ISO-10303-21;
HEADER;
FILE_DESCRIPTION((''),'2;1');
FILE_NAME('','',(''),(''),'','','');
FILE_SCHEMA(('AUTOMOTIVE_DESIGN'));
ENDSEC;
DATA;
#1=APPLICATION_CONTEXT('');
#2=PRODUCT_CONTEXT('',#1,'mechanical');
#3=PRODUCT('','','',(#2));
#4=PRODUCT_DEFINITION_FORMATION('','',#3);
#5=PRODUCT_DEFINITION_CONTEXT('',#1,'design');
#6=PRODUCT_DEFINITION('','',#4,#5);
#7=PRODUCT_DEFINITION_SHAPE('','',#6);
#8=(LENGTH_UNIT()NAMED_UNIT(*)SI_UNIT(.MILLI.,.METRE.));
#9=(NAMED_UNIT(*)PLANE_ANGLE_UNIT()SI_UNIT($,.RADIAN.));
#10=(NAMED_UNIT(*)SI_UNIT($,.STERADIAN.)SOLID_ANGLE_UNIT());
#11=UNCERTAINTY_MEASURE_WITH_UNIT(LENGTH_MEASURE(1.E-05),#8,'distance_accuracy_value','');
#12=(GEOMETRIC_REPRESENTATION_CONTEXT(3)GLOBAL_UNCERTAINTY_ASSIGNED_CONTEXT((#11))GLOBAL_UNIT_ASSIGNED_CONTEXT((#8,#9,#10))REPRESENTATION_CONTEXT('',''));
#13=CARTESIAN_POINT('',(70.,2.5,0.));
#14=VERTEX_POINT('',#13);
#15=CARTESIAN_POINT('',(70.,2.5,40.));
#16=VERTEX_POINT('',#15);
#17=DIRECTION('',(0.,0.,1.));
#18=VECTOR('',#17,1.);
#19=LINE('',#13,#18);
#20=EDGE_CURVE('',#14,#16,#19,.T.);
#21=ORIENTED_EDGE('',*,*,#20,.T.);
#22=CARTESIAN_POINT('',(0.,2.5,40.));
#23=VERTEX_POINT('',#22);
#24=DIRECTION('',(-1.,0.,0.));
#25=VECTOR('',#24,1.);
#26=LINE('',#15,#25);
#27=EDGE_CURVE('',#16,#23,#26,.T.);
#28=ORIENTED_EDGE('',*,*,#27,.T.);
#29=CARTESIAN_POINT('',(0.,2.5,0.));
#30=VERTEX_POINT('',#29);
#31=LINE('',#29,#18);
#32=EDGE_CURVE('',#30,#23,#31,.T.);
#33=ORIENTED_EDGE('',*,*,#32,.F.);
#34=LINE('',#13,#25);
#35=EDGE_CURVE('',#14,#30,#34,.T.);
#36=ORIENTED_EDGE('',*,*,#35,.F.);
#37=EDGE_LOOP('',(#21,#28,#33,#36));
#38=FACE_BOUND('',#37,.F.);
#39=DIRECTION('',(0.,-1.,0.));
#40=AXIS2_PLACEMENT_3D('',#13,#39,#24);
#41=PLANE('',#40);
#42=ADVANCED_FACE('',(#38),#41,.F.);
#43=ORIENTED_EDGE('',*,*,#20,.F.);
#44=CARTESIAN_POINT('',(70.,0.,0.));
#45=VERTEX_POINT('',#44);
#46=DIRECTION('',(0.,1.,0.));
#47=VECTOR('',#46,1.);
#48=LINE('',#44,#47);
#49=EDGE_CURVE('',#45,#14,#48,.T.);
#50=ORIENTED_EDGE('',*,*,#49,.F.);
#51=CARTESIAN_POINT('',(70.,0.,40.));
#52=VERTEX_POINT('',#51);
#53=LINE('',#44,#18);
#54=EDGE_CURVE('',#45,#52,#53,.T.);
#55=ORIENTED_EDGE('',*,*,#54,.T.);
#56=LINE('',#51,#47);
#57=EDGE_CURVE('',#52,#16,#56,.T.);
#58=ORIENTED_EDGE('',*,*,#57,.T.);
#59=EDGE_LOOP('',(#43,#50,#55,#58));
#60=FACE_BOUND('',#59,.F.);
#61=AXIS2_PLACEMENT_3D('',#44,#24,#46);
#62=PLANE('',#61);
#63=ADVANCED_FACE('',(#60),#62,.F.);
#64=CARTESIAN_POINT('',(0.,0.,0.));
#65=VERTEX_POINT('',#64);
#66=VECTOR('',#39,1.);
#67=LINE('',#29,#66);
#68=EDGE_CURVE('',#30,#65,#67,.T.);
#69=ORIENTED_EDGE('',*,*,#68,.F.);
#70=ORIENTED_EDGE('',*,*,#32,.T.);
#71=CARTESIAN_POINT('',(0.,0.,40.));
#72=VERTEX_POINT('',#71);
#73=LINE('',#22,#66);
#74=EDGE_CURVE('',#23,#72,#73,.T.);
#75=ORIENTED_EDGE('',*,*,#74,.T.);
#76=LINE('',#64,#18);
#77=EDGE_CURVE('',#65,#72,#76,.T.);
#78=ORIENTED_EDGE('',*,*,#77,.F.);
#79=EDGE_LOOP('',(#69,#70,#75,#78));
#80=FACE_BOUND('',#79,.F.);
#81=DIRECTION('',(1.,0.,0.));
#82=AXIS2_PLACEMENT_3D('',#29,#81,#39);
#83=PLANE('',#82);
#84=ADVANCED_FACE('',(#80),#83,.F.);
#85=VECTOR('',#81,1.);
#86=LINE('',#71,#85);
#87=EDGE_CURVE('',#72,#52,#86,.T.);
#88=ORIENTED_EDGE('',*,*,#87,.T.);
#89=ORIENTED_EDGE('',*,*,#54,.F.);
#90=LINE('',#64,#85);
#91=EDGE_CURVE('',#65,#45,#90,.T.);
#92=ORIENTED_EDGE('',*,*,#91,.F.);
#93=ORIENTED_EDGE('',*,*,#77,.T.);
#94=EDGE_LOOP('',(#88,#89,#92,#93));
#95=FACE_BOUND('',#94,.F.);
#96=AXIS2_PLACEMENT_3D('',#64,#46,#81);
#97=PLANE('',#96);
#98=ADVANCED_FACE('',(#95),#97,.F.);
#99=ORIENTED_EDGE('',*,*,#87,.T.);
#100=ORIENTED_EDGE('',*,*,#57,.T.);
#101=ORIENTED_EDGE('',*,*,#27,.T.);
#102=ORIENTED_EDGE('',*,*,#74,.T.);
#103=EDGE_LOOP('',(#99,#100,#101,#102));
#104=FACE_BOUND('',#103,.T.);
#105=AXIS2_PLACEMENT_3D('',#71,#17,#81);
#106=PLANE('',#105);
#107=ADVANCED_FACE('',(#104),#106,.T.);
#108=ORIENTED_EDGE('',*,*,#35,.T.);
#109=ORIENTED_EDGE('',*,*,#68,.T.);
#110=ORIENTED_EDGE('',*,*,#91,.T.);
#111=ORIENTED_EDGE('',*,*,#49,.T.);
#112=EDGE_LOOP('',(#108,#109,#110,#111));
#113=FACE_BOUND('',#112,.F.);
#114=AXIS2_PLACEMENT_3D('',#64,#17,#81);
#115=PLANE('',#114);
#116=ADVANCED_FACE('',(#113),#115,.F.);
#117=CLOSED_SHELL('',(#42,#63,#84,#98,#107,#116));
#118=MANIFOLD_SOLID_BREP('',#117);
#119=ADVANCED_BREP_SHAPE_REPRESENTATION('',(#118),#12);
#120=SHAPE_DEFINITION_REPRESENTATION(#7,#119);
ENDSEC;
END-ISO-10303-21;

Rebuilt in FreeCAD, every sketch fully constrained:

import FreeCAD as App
import Part
import Sketcher
from FreeCAD import Vector

doc = App.newDocument("Part")
body = doc.addObject("PartDesign::Body", "Body")

# Sketch on XY plane
sketch1 = body.newObject("Sketcher::SketchObject", "Sketch")
sketch1.AttachmentSupport = (doc.getObject("XY_Plane"), [""])
sketch1.MapMode = "FlatFace"
sketch1.addGeometry(Part.LineSegment(Vector(0, 2.5, 0), Vector(0, 0, 0)), False)
sketch1.addGeometry(Part.LineSegment(Vector(0, 0, 0), Vector(70, 0, 0)), False)
sketch1.addGeometry(Part.LineSegment(Vector(70, 0, 0), Vector(70, 2.5, 0)), False)
sketch1.addGeometry(Part.LineSegment(Vector(70, 2.5, 0), Vector(0, 2.5, 0)), False)
sketch1.addConstraint(Sketcher.Constraint("Coincident", 0, 2, 1, 1))
sketch1.addConstraint(Sketcher.Constraint("Coincident", 1, 2, 2, 1))
sketch1.addConstraint(Sketcher.Constraint("Coincident", 2, 2, 3, 1))
sketch1.addConstraint(Sketcher.Constraint("Coincident", 3, 2, 0, 1))
sketch1.addConstraint(Sketcher.Constraint("Vertical", 0))
sketch1.addConstraint(Sketcher.Constraint("Horizontal", 1))
sketch1.addConstraint(Sketcher.Constraint("Vertical", 2))
sketch1.addConstraint(Sketcher.Constraint("Horizontal", 3))
sketch1.addConstraint(Sketcher.Constraint("Coincident", 0, 2, -1, 1))
sketch1.addConstraint(Sketcher.Constraint("DistanceX", 1, 1, 1, 2, 70.0))
sketch1.addConstraint(Sketcher.Constraint("DistanceY", 0, 2, 0, 1, 2.5))
pad1 = body.newObject("PartDesign::Pad", "Pad")
pad1.Profile = sketch1
pad1.Length = 40

doc.recompute()
